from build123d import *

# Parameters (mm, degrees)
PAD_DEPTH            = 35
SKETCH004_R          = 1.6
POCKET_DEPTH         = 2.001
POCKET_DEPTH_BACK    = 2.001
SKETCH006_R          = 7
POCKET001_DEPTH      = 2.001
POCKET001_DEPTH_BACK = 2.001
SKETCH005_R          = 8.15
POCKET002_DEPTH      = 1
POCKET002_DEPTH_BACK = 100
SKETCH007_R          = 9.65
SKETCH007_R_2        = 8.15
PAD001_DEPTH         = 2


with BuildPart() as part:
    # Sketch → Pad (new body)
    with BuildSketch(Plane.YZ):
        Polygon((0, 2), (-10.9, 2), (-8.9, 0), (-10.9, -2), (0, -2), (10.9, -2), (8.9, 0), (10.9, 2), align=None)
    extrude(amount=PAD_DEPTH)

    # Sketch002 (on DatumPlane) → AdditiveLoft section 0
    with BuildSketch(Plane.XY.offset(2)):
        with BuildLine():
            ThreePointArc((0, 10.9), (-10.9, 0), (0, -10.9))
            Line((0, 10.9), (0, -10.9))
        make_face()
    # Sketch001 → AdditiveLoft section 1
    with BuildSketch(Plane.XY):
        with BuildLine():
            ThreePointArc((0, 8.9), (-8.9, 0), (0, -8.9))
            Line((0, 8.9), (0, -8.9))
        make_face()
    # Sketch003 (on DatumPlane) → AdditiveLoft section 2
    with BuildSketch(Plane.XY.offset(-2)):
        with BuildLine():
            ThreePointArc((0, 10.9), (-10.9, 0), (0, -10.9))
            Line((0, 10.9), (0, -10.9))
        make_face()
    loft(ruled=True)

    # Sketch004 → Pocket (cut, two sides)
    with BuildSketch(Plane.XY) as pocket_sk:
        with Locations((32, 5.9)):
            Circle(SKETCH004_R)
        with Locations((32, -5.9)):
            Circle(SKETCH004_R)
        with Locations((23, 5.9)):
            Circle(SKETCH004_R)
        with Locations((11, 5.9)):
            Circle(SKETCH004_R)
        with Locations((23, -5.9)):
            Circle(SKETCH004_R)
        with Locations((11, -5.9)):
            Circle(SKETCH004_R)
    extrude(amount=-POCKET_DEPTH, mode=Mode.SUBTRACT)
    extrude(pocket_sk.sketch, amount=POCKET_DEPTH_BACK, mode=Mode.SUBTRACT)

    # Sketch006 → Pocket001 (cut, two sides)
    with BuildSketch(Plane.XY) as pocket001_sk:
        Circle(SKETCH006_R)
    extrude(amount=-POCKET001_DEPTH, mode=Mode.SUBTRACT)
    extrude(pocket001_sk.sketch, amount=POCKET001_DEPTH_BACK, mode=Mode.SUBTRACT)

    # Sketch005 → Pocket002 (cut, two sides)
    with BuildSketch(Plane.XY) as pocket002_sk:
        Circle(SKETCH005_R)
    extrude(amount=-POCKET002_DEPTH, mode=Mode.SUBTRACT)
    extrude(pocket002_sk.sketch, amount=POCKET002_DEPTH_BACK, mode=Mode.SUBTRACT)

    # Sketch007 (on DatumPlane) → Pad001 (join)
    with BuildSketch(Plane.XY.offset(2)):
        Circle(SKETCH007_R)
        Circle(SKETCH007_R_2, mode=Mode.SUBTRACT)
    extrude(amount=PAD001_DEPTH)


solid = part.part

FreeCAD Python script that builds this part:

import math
import FreeCAD as App
import Part
import Sketcher
from FreeCAD import Vector
Q = App.Units.Quantity


def add_polygon(sketch, points):
    """Adds a closed chain of lines whose ends are joined by coincident constraints."""
    first, n = sketch.GeometryCount, len(points)
    for a, b in zip(points, points[1:] + points[:1]):
        sketch.addGeometry(Part.LineSegment(App.Vector(*a, 0), App.Vector(*b, 0)), False)
    for i in range(n):
        sketch.addConstraint(Sketcher.Constraint("Coincident", first + i, 2, first + (i + 1) % n, 1))

doc = App.newDocument("Part")
params = doc.addObject("Spreadsheet::Sheet", "Params")
for row, (alias, value) in enumerate([
    ("sketch1_width", "21.8 mm"),
    ("pad1_length", "35 mm"),
    ("sketch2_radius", "10.9 mm"),
    ("sketch3_radius", "8.9 mm"),
    ("sketch4_radius", "10.9 mm"),
    ("sketch5_diameter", "3.2 mm"),
    ("sketch6_diameter", "14 mm"),
    ("sketch7_diameter", "16.3 mm"),
    ("pocket3_length", "1 mm"),
    ("pocket3_length2", "100 mm"),
    ("sketch8_diameter", "19.3 mm"),
    ("sketch8_diameter2", "16.3 mm"),
    ("pad2_length", "2 mm"),
], start=1):
    params.set(f"A{row}", alias)
    params.set(f"B{row}", "=" + value)
    params.setAlias(f"B{row}", alias)

body = doc.addObject("PartDesign::Body", "Body")

# Sketch on YZ plane
sketch1 = body.newObject("Sketcher::SketchObject", "Sketch")
sketch1.AttachmentSupport = (doc.getObject("YZ_Plane"), [""])
sketch1.MapMode = "FlatFace"
add_polygon(sketch1, [(-10.9, 2), (-8.9, 0), (-10.9, -2), (10.9, -2), (8.9, 0), (10.9, 2)])  # lines 0-5
sketch1.addConstraint(Sketcher.Constraint("Horizontal", 2))
sketch1.addConstraint(Sketcher.Constraint("Horizontal", 5))
sketch1.addConstraint(Sketcher.Constraint("Symmetric", 0, 2, 3, 2, -1, 1))
sketch1.addConstraint(Sketcher.Constraint("Symmetric", 1, 2, 4, 2, -1, 1))
sketch1.addConstraint(Sketcher.Constraint("PointOnObject", 0, 2, -1))
sketch1.addConstraint(Sketcher.Constraint("Perpendicular", 0, 1))
sketch1.addConstraint(Sketcher.Constraint("Perpendicular", 1, 3))
sketch1.addConstraint(Sketcher.Constraint("Vertical", 2, 2, 4, 2))
sketch1.addConstraint(Sketcher.Constraint("DistanceX", 2, 1, 2, 2, Q("21.8 mm")))
sketch1.addConstraint(Sketcher.Constraint("DistanceY", 1, 2, -1, 1, Q("2 mm")))
sketch1.setExpression("Constraints[14]", "Params.sketch1_width")
pad1 = body.newObject("PartDesign::Pad", "Pad")
pad1.Profile = sketch1
pad1.setExpression("Length", "Params.pad1_length")

# Sketch on XY plane
sketch2 = body.newObject("Sketcher::SketchObject", "Sketch001")
sketch2.AttachmentSupport = (doc.getObject("XY_Plane"), [""])
sketch2.MapMode = "FlatFace"
sketch2.AttachmentOffset = App.Placement(Vector(0, 0, 2), App.Rotation())
sketch2.addGeometry(Part.ArcOfCircle(Part.Circle(Vector(0, 0, 0), Vector(0, 0, 1), 11), math.radians(90), math.radians(270)), False)
sketch2.addGeometry(Part.LineSegment(Vector(0, -11, 0), Vector(0, 11, 0)), False)
sketch2.addConstraint(Sketcher.Constraint("Coincident", 0, 1, 1, 2))
sketch2.addConstraint(Sketcher.Constraint("Coincident", 1, 1, 0, 2))
sketch2.addConstraint(Sketcher.Constraint("Vertical", 1))
sketch2.addConstraint(Sketcher.Constraint("Coincident", 0, 3, -1, 1))
sketch2.addConstraint(Sketcher.Constraint("PointOnObject", 0, 1, -2))
sketch2.addConstraint(Sketcher.Constraint("Radius", 0, Q("10.9 mm")))
sketch2.setExpression("Constraints[5]", "Params.sketch2_radius")

# Sketch on XY plane
sketch3 = body.newObject("Sketcher::SketchObject", "Sketch002")
sketch3.AttachmentSupport = (doc.getObject("XY_Plane"), [""])
sketch3.MapMode = "FlatFace"
sketch3.addGeometry(Part.ArcOfCircle(Part.Circle(Vector(0, 0, 0), Vector(0, 0, 1), 9), math.radians(90), math.radians(270)), False)
sketch3.addGeometry(Part.LineSegment(Vector(0, -9, 0), Vector(0, 9, 0)), False)
sketch3.addConstraint(Sketcher.Constraint("Coincident", 0, 1, 1, 2))
sketch3.addConstraint(Sketcher.Constraint("Coincident", 1, 1, 0, 2))
sketch3.addConstraint(Sketcher.Constraint("Vertical", 1))
sketch3.addConstraint(Sketcher.Constraint("Coincident", 0, 3, -1, 1))
sketch3.addConstraint(Sketcher.Constraint("PointOnObject", 0, 1, -2))
sketch3.addConstraint(Sketcher.Constraint("Radius", 0, Q("8.9 mm")))
sketch3.setExpression("Constraints[5]", "Params.sketch3_radius")

# Sketch on XY plane
sketch4 = body.newObject("Sketcher::SketchObject", "Sketch003")
sketch4.AttachmentSupport = (doc.getObject("XY_Plane"), [""])
sketch4.MapMode = "FlatFace"
sketch4.AttachmentOffset = App.Placement(Vector(0, 0, -2), App.Rotation())
sketch4.addGeometry(Part.ArcOfCircle(Part.Circle(Vector(0, 0, 0), Vector(0, 0, 1), 11), math.radians(90), math.radians(270)), False)
sketch4.addGeometry(Part.LineSegment(Vector(0, -11, 0), Vector(0, 11, 0)), False)
sketch4.addConstraint(Sketcher.Constraint("Coincident", 0, 1, 1, 2))
sketch4.addConstraint(Sketcher.Constraint("Coincident", 1, 1, 0, 2))
sketch4.addConstraint(Sketcher.Constraint("Vertical", 1))
sketch4.addConstraint(Sketcher.Constraint("Coincident", 0, 3, -1, 1))
sketch4.addConstraint(Sketcher.Constraint("PointOnObject", 0, 1, -2))
sketch4.addConstraint(Sketcher.Constraint("Radius", 0, Q("10.9 mm")))
sketch4.setExpression("Constraints[5]", "Params.sketch4_radius")

additiveloft = body.newObject("PartDesign::AdditiveLoft", "AdditiveLoft")
additiveloft.Profile = sketch2
additiveloft.Sections = [sketch3, sketch4]
additiveloft.Ruled = True

# Sketch on XY plane
sketch5 = body.newObject("Sketcher::SketchObject", "Sketch004")
sketch5.AttachmentSupport = (doc.getObject("XY_Plane"), [""])
sketch5.MapMode = "FlatFace"
sketch5.addGeometry(Part.Circle(Vector(32, 5.9, 0), Vector(0, 0, 1), 1.6), False)
sketch5.addGeometry(Part.Circle(Vector(32, -5.9, 0), Vector(0, 0, 1), 1.6), False)
sketch5.addGeometry(Part.Circle(Vector(23, 5.9, 0), Vector(0, 0, 1), 1.6), False)
sketch5.addGeometry(Part.Circle(Vector(11, 5.9, 0), Vector(0, 0, 1), 1.6), False)
sketch5.addGeometry(Part.Circle(Vector(23, -5.9, 0), Vector(0, 0, 1), 1.6), False)
sketch5.addGeometry(Part.Circle(Vector(11, -5.9, 0), Vector(0, 0, 1), 1.6), False)
sketch5.addConstraint(Sketcher.Constraint("Equal", 0, 1))
sketch5.addConstraint(Sketcher.Constraint("Equal", 1, 2))
sketch5.addConstraint(Sketcher.Constraint("Equal", 2, 3))
sketch5.addConstraint(Sketcher.Constraint("Equal", 3, 4))
sketch5.addConstraint(Sketcher.Constraint("Equal", 4, 5))
sketch5.addConstraint(Sketcher.Constraint("Symmetric", 0, 3, 1, 3, -1))
sketch5.addConstraint(Sketcher.Constraint("Symmetric", 2, 3, 4, 3, -1))
sketch5.addConstraint(Sketcher.Constraint("Symmetric", 3, 3, 5, 3, -1))
sketch5.addConstraint(Sketcher.Constraint("Horizontal", 0, 3, 2, 3))
sketch5.addConstraint(Sketcher.Constraint("Horizontal", 2, 3, 3, 3))
sketch5.addConstraint(Sketcher.Constraint("Diameter", 0, Q("3.2 mm")))
sketch5.addConstraint(Sketcher.Constraint("DistanceX", -1, 1, 0, 3, Q("32 mm")))
sketch5.addConstraint(Sketcher.Constraint("DistanceX", -1, 1, 2, 3, Q("23 mm")))
sketch5.addConstraint(Sketcher.Constraint("DistanceX", -1, 1, 3, 3, Q("11 mm")))
sketch5.addConstraint(Sketcher.Constraint("DistanceY", -1, 1, 0, 3, Q("5.9 mm")))
sketch5.setExpression("Constraints[10]", "Params.sketch5_diameter")
pocket1 = body.newObject("PartDesign::Pocket", "Pocket")
pocket1.Profile = sketch5
pocket1.Type = "ThroughAll"
pocket1.Midplane = True

# Sketch on XY plane
sketch6 = body.newObject("Sketcher::SketchObject", "Sketch005")
sketch6.AttachmentSupport = (doc.getObject("XY_Plane"), [""])
sketch6.MapMode = "FlatFace"
sketch6.addGeometry(Part.Circle(Vector(0, 0, 0), Vector(0, 0, 1), 7), False)
sketch6.addConstraint(Sketcher.Constraint("Coincident", 0, 3, -1, 1))
sketch6.addConstraint(Sketcher.Constraint("Diameter", 0, Q("14 mm")))
sketch6.setExpression("Constraints[1]", "Params.sketch6_diameter")
pocket2 = body.newObject("PartDesign::Pocket", "Pocket001")
pocket2.Profile = sketch6
pocket2.Type = "ThroughAll"
pocket2.Midplane = True

# Sketch on XY plane
sketch7 = body.newObject("Sketcher::SketchObject", "Sketch006")
sketch7.AttachmentSupport = (doc.getObject("XY_Plane"), [""])
sketch7.MapMode = "FlatFace"
sketch7.addGeometry(Part.Circle(Vector(0, 0, 0), Vector(0, 0, 1), 8), False)
sketch7.addConstraint(Sketcher.Constraint("Coincident", 0, 3, -1, 1))
sketch7.addConstraint(Sketcher.Constraint("Diameter", 0, Q("16.3 mm")))
sketch7.setExpression("Constraints[1]", "Params.sketch7_diameter")
pocket3 = body.newObject("PartDesign::Pocket", "Pocket002")
pocket3.Profile = sketch7
pocket3.Type = "TwoLengths"
pocket3.setExpression("Length", "Params.pocket3_length")
pocket3.setExpression("Length2", "Params.pocket3_length2")

# Sketch on XY plane
sketch8 = body.newObject("Sketcher::SketchObject", "Sketch007")
sketch8.AttachmentSupport = (doc.getObject("XY_Plane"), [""])
sketch8.MapMode = "FlatFace"
sketch8.AttachmentOffset = App.Placement(Vector(0, 0, 2), App.Rotation())
sketch8.addGeometry(Part.Circle(Vector(0, 0, 0), Vector(0, 0, 1), 10), False)
sketch8.addGeometry(Part.Circle(Vector(0, 0, 0), Vector(0, 0, 1), 8), False)
sketch8.addConstraint(Sketcher.Constraint("Coincident", 0, 3, -1, 1))
sketch8.addConstraint(Sketcher.Constraint("Coincident", 1, 3, -1, 1))
sketch8.addConstraint(Sketcher.Constraint("Diameter", 0, Q("19.3 mm")))
sketch8.addConstraint(Sketcher.Constraint("Diameter", 1, Q("16.3 mm")))
sketch8.setExpression("Constraints[2]", "Params.sketch8_diameter")
sketch8.setExpression("Constraints[3]", "Params.sketch8_diameter2")
pad2 = body.newObject("PartDesign::Pad", "Pad001")
pad2.Profile = sketch8
pad2.setExpression("Length", "Params.pad2_length")

doc.recompute()
